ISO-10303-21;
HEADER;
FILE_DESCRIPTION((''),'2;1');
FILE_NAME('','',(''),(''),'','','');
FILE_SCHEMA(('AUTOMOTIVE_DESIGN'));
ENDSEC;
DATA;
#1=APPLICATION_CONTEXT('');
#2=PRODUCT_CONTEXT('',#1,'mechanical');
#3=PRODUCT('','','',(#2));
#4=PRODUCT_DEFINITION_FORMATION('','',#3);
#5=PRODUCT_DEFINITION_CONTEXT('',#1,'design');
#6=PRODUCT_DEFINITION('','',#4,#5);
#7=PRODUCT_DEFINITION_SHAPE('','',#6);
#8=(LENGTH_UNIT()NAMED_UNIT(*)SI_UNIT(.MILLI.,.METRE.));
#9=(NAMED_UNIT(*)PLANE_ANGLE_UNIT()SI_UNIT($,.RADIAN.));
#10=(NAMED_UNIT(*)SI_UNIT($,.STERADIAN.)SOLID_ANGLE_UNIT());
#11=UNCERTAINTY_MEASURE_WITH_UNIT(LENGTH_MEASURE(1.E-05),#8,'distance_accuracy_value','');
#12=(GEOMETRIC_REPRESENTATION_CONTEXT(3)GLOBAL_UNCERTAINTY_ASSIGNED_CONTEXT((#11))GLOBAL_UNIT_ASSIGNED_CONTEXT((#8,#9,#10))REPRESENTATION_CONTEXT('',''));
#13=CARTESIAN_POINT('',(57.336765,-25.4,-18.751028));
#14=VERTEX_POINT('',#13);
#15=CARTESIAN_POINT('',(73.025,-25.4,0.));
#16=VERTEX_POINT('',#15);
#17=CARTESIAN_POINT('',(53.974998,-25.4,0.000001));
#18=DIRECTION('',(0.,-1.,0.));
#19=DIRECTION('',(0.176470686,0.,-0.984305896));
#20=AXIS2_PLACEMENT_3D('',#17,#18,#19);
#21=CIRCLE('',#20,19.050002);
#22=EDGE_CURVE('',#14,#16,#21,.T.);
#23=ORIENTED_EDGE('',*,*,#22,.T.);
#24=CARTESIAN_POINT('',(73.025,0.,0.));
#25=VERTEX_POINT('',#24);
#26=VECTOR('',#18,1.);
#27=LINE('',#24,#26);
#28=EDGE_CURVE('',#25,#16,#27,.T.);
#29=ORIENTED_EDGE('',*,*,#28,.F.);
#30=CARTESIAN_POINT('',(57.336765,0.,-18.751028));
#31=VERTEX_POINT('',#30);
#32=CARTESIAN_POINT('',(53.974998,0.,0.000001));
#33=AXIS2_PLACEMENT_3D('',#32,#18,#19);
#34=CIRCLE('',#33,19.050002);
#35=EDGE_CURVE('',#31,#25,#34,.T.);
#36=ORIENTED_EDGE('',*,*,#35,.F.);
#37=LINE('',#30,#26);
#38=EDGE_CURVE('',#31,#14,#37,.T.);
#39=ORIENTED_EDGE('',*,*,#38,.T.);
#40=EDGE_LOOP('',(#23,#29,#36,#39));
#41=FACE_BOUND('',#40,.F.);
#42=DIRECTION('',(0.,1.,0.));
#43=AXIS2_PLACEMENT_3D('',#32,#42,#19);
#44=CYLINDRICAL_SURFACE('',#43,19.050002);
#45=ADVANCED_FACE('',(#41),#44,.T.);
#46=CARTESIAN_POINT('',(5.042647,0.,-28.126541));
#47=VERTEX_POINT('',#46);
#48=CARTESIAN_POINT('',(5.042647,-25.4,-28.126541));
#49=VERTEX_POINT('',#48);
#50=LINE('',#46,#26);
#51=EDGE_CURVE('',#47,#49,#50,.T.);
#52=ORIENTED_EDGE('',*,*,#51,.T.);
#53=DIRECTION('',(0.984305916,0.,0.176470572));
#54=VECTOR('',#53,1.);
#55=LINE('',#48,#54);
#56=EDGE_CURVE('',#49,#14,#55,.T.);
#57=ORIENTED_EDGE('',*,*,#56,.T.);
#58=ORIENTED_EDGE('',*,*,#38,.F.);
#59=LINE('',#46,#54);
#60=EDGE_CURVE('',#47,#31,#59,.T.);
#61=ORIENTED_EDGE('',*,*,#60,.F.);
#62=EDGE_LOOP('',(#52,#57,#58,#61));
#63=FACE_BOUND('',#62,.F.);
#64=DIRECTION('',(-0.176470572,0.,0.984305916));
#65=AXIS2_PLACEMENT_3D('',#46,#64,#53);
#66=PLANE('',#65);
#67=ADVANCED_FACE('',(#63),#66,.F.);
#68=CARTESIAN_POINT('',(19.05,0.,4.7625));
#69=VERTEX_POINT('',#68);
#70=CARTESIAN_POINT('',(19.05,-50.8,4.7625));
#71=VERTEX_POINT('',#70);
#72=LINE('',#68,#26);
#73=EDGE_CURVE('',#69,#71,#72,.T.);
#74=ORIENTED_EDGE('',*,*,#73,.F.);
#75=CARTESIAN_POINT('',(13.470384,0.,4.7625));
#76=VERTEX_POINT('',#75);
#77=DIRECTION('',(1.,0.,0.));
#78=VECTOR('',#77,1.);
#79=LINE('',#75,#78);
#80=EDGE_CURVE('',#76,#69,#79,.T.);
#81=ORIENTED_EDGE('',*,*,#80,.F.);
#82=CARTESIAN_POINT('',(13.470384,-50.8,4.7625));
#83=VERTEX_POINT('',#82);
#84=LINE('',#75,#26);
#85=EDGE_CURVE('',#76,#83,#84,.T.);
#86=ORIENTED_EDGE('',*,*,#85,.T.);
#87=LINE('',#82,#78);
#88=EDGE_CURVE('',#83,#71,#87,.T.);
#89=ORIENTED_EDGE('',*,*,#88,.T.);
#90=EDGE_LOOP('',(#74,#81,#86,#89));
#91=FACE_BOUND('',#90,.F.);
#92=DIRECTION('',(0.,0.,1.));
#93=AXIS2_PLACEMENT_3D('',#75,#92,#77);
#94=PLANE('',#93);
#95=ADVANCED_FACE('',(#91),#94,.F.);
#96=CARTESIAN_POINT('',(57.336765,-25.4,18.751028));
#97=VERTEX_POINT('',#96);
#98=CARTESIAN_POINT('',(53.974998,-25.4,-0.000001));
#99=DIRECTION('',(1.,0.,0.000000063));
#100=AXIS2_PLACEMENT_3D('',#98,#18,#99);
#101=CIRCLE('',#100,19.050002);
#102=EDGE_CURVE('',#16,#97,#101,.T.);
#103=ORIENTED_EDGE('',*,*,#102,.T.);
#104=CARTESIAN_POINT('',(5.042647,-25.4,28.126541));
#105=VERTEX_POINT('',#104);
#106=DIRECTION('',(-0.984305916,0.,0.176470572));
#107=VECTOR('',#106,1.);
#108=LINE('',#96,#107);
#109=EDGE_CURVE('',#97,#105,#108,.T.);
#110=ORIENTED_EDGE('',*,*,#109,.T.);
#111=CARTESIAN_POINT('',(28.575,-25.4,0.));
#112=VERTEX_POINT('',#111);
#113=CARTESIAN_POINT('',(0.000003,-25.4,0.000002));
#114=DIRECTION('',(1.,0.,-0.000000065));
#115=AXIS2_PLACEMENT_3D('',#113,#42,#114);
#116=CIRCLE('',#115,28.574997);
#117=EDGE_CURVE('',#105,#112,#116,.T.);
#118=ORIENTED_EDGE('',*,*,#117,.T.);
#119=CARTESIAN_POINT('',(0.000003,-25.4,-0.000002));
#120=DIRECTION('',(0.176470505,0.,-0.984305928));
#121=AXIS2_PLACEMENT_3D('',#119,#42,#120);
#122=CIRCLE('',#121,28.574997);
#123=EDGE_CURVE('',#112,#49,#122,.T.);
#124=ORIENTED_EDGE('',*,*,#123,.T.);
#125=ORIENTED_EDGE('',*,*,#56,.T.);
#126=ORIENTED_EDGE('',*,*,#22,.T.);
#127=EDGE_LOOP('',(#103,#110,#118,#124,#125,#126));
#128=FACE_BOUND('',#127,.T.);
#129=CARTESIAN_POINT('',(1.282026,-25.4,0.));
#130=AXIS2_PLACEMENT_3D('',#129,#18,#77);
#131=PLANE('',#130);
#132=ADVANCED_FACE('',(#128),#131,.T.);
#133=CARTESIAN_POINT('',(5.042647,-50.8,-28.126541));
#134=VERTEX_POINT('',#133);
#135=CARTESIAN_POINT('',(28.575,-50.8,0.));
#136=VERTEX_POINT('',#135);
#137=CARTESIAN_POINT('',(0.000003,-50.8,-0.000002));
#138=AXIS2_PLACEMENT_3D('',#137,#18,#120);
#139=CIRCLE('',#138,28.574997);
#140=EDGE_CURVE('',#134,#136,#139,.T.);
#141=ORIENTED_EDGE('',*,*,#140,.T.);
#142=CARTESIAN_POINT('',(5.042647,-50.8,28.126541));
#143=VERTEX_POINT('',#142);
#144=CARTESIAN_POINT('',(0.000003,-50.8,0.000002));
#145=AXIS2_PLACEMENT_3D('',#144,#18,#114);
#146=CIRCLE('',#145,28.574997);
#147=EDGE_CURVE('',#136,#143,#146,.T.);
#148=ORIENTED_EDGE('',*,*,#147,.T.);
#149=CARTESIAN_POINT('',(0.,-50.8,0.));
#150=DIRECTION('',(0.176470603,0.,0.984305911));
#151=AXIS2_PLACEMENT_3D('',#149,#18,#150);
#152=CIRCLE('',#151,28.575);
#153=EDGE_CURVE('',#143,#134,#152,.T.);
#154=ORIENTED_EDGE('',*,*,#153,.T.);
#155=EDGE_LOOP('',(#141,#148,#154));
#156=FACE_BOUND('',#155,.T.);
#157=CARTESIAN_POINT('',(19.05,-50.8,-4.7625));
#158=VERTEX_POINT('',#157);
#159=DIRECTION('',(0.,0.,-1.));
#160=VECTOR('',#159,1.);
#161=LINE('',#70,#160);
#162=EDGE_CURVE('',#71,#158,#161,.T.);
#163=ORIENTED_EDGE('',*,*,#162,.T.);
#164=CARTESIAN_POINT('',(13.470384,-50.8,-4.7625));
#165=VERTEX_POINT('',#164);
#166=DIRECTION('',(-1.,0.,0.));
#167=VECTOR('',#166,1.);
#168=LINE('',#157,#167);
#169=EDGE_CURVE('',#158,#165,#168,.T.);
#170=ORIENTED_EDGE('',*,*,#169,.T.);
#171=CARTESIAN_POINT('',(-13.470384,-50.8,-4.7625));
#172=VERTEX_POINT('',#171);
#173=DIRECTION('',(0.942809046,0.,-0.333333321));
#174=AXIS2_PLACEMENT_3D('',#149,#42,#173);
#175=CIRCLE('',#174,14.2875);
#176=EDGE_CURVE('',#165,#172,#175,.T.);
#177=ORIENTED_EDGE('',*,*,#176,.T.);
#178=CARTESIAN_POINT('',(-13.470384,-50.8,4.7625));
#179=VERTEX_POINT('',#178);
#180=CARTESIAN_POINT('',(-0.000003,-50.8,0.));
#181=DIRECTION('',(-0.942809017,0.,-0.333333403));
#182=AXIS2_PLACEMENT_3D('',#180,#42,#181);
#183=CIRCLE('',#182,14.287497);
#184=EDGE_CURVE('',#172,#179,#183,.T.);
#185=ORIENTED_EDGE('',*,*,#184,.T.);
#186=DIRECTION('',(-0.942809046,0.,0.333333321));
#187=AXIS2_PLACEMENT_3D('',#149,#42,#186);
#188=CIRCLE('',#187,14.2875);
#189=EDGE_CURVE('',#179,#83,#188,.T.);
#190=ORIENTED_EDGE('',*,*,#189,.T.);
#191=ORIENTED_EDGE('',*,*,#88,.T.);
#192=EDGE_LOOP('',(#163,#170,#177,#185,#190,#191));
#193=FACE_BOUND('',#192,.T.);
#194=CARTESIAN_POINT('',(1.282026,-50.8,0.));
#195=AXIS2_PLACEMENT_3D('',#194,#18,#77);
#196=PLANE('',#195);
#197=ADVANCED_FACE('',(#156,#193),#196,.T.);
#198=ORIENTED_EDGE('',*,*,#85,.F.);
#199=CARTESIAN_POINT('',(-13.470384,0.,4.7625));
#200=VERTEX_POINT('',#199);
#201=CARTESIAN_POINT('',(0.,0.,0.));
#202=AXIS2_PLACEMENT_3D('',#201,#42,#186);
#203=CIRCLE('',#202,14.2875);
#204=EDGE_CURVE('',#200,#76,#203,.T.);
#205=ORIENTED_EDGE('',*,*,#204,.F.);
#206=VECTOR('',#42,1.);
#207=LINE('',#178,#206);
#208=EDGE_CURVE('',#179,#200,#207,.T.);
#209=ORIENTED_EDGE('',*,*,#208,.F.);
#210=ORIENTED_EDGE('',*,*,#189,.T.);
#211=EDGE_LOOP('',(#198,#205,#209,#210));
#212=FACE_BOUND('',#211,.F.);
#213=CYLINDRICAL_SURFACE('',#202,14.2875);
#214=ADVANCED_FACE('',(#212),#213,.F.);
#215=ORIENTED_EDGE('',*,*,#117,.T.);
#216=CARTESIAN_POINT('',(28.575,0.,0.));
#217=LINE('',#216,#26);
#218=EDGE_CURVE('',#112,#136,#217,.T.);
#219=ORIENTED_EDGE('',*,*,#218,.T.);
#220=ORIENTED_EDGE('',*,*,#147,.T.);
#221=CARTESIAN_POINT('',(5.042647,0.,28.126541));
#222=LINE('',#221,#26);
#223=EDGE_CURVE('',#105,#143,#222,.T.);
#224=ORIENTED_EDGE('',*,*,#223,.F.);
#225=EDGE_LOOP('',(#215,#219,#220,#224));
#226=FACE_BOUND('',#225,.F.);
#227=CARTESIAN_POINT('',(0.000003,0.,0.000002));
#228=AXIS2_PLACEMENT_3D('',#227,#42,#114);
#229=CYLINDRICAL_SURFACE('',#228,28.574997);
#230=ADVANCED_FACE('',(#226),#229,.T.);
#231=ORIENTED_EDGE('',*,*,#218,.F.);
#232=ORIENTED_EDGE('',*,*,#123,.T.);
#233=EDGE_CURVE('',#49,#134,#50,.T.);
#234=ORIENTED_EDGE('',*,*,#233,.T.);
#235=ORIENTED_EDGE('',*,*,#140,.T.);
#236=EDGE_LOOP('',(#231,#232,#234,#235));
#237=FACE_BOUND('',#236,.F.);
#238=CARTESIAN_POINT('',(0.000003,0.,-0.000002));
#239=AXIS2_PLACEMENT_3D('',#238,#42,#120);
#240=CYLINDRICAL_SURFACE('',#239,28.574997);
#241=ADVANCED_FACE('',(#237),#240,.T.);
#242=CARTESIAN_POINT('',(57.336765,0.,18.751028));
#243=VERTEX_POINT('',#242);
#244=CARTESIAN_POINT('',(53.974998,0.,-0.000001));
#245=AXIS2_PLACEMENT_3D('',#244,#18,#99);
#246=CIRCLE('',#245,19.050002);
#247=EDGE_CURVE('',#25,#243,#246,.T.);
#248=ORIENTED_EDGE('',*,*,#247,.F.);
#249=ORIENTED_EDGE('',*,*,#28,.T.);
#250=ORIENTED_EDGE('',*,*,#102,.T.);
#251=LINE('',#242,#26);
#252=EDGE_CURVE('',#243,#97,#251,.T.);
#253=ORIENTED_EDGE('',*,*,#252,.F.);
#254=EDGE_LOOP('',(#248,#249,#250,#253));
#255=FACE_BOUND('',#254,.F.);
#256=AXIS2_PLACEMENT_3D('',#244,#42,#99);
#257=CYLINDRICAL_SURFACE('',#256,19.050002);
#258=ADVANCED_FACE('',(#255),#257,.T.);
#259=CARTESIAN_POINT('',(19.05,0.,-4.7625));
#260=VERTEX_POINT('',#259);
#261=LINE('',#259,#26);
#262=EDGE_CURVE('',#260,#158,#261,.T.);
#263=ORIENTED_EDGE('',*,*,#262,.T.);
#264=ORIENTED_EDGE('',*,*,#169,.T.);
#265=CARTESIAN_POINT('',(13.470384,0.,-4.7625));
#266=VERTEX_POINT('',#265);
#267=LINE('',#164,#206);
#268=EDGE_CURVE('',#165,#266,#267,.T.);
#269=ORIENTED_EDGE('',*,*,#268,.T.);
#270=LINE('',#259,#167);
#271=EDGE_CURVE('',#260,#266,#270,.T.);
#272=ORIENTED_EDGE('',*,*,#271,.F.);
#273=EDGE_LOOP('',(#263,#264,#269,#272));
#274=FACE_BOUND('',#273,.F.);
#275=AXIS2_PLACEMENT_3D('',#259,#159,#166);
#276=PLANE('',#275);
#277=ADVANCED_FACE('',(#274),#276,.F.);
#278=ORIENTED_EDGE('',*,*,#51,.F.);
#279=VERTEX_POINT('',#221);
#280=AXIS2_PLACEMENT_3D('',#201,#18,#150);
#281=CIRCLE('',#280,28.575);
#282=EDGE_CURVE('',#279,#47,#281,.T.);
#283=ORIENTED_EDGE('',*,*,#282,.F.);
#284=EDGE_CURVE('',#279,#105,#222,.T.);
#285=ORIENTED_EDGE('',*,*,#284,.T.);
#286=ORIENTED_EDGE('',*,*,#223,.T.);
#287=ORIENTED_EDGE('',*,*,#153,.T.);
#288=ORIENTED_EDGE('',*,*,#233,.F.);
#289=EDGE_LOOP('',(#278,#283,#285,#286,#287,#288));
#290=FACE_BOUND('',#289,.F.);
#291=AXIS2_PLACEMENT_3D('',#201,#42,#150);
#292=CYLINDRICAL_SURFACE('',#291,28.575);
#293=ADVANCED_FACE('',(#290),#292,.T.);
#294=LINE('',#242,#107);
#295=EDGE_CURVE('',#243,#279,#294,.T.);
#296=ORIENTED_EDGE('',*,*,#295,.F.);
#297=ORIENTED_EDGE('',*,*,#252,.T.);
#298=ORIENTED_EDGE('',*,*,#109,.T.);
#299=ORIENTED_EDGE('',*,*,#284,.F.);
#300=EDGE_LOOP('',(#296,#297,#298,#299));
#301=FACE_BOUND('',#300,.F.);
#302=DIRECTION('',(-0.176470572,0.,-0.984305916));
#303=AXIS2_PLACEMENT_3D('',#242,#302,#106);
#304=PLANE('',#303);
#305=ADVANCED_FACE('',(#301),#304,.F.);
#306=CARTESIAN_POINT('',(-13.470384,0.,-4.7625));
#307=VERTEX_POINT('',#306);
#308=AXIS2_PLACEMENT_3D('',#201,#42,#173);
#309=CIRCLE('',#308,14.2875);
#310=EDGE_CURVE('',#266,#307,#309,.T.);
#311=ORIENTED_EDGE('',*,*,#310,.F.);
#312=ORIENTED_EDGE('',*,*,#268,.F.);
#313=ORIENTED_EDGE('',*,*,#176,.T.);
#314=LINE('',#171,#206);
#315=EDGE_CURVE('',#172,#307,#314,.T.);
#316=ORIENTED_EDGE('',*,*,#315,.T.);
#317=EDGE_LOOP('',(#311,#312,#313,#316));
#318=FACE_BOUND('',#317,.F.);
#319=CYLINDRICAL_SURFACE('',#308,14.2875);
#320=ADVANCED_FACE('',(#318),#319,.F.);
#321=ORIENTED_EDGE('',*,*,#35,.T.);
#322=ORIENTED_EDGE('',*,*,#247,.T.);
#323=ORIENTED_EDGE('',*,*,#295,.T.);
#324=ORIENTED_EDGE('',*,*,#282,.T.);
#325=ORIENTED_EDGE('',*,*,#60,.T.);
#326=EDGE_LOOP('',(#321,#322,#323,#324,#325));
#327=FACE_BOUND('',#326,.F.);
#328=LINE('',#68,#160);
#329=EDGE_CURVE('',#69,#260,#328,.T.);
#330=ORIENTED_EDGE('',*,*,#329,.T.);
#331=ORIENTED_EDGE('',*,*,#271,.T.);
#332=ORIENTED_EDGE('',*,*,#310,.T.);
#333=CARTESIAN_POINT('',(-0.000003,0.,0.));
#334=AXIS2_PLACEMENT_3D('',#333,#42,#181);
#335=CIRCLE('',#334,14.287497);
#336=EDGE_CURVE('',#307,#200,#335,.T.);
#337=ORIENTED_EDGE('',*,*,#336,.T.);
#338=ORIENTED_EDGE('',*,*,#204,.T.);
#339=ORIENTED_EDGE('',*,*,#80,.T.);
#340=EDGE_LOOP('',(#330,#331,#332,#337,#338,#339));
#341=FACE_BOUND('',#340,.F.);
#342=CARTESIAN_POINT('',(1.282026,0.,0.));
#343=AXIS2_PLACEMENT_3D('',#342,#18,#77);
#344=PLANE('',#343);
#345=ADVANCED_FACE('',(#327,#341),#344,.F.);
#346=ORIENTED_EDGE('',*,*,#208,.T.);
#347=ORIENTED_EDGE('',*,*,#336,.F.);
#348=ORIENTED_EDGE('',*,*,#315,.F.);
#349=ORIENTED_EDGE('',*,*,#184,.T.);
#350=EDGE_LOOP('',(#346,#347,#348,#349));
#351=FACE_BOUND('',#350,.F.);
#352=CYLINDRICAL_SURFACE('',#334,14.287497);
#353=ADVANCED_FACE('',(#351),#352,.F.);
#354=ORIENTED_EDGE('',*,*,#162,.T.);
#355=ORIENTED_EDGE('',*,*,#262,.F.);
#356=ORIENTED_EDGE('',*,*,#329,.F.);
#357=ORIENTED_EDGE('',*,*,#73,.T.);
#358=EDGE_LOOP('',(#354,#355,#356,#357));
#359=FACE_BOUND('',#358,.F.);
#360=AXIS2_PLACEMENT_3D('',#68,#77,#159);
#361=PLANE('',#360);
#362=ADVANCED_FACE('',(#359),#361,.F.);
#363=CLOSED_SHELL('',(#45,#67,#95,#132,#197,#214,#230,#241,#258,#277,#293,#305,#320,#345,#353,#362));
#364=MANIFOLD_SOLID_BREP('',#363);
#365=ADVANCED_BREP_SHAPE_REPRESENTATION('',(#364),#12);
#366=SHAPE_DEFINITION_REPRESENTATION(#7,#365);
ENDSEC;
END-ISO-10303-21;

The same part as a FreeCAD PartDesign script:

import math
import FreeCAD as App
import Part
import Sketcher
Q = App.Units.Quantity

doc = App.newDocument("Part")
params = doc.addObject("Spreadsheet::Sheet", "Params")
for row, (alias, value) in enumerate([
    ("sketch1_radius", "0.7500001 in"),
    ("sketch1_radius2", "1.125 in"),
    ("sketch1_radius3", "0.5625 in"),
    ("sketch1_height", "0.375 in"),
    ("pad1_length", "1 in"),
    ("sketch2_radius", "1.1249999 in"),
    ("sketch2_radius2", "0.5625 in"),
    ("sketch2_height", "0.375 in"),
    ("pad2_length", "2 in"),
], start=1):
    params.set(f"A{row}", alias)
    params.set(f"B{row}", "=" + value)
    params.setAlias(f"B{row}", alias)

body = doc.addObject("PartDesign::Body", "Body")

sketch1 = body.newObject("Sketcher::SketchObject", "Sketch")
sketch1.AttachmentSupport = (doc.getObject("XZ_Plane"), [""])
sketch1.MapMode = "FlatFace"
sketch1.addGeometry([
    Part.ArcOfCircle(Part.Circle(App.Vector(0, 0, 0), App.Vector(0, 0, 1), 29), math.radians(80), math.radians(280)),
    Part.LineSegment(App.Vector(5, -28, 0), App.Vector(57, -19, 0)),
    Part.ArcOfCircle(Part.Circle(App.Vector(54, 0, 0), App.Vector(0, 0, 1), 19), math.radians(-80), math.radians(0)),
    Part.ArcOfCircle(Part.Circle(App.Vector(54, 0, 0), App.Vector(0, 0, 1), 19), math.radians(0), math.radians(80)),
    Part.LineSegment(App.Vector(57, 19, 0), App.Vector(5, 28, 0)),
    Part.ArcOfCircle(Part.Circle(App.Vector(0, 0, 0), App.Vector(0, 0, 1), 14), math.radians(19), math.radians(161)),
    Part.LineSegment(App.Vector(13, 5, 0), App.Vector(19, 5, 0)),
    Part.LineSegment(App.Vector(19, 5, 0), App.Vector(19, -5, 0)),
    Part.LineSegment(App.Vector(19, -5, 0), App.Vector(13, -5, 0)),
    Part.ArcOfCircle(Part.Circle(App.Vector(0, 0, 0), App.Vector(0, 0, 1), 14), math.radians(-161), math.radians(-19)),
    Part.ArcOfCircle(Part.Circle(App.Vector(0, 0, 0), App.Vector(0, 0, 1), 14), math.radians(161), math.radians(199)),
], False)
sketch1.addConstraint([
    Sketcher.Constraint("Tangent", 0, 2, 1, 1),
    Sketcher.Constraint("Tangent", 1, 2, 2, 1),
    Sketcher.Constraint("Tangent", 2, 2, 3, 1),
    Sketcher.Constraint("Tangent", 3, 2, 4, 1),
    Sketcher.Constraint("Tangent", 4, 2, 0, 1),
    Sketcher.Constraint("Coincident", 5, 1, 6, 1),
    Sketcher.Constraint("Coincident", 6, 2, 7, 1),
    Sketcher.Constraint("Coincident", 7, 2, 8, 1),
    Sketcher.Constraint("Coincident", 8, 2, 9, 2),
    Sketcher.Constraint("Tangent", 9, 1, 10, 2),
    Sketcher.Constraint("Tangent", 10, 1, 5, 2),
    Sketcher.Constraint("Horizontal", 6),
    Sketcher.Constraint("Vertical", 7),
    Sketcher.Constraint("Horizontal", 8),
    Sketcher.Constraint("Coincident", 0, 3, -1, 1),
    Sketcher.Constraint("Coincident", 5, 3, -1, 1),
    Sketcher.Constraint("Coincident", 9, 3, -1, 1),
    Sketcher.Constraint("Equal", 2, 3),
    Sketcher.Constraint("PointOnObject", 2, 3, -1),
    Sketcher.Constraint("PointOnObject", 2, 2, -1),
    Sketcher.Constraint("Horizontal", 8, 2, 9, 1),
    Sketcher.Constraint("Horizontal", 6, 2, 10, 1),
    Sketcher.Constraint("Vertical", 5, 1, 8, 2),
    Sketcher.Constraint("Radius", 2, Q("0.7500001 in")),
    Sketcher.Constraint("Radius", 0, Q("1.125 in")),
    Sketcher.Constraint("Radius", 5, Q("0.5625 in")),
    Sketcher.Constraint("DistanceY", 7, 2, 7, 1, Q("0.375 in")),
    Sketcher.Constraint("DistanceX", -1, 1, 6, 2, Q("0.75 in")),
    Sketcher.Constraint("DistanceX", -1, 1, 2, 3, Q("2.1249999 in")),
])
sketch1.setExpression("Constraints[23]", "Params.sketch1_radius")
sketch1.setExpression("Constraints[24]", "Params.sketch1_radius2")
sketch1.setExpression("Constraints[25]", "Params.sketch1_radius3")
sketch1.setExpression("Constraints[26]", "Params.sketch1_height")
pad1 = body.newObject("PartDesign::Pad", "Pad")
pad1.Profile = sketch1
pad1.setExpression("Length", "Params.pad1_length")

sketch2 = body.newObject("Sketcher::SketchObject", "Sketch001")
sketch2.AttachmentSupport = (doc.getObject("XZ_Plane"), [""])
sketch2.MapMode = "FlatFace"
sketch2.addGeometry([
    Part.ArcOfCircle(Part.Circle(App.Vector(0, 0, 0), App.Vector(0, 0, 1), 29), math.radians(-80), math.radians(0)),
    Part.ArcOfCircle(Part.Circle(App.Vector(0, 0, 0), App.Vector(0, 0, 1), 29), math.radians(0), math.radians(80)),
    Part.ArcOfCircle(Part.Circle(App.Vector(0, 0, 0), App.Vector(0, 0, 1), 29), math.radians(80), math.radians(280)),
    Part.ArcOfCircle(Part.Circle(App.Vector(0, 0, 0), App.Vector(0, 0, 1), 14), math.radians(-161), math.radians(-19)),
    Part.ArcOfCircle(Part.Circle(App.Vector(0, 0, 0), App.Vector(0, 0, 1), 14), math.radians(161), math.radians(199)),
    Part.ArcOfCircle(Part.Circle(App.Vector(0, 0, 0), App.Vector(0, 0, 1), 14), math.radians(19), math.radians(161)),
    Part.LineSegment(App.Vector(13, 5, 0), App.Vector(19, 5, 0)),
    Part.LineSegment(App.Vector(19, 5, 0), App.Vector(19, -5, 0)),
    Part.LineSegment(App.Vector(19, -5, 0), App.Vector(13, -5, 0)),
], False)
sketch2.addConstraint([
    Sketcher.Constraint("Tangent", 0, 2, 1, 1),
    Sketcher.Constraint("Tangent", 1, 2, 2, 1),
    Sketcher.Constraint("Tangent", 2, 2, 0, 1),
    Sketcher.Constraint("Tangent", 3, 1, 4, 2),
    Sketcher.Constraint("Tangent", 4, 1, 5, 2),
    Sketcher.Constraint("Coincident", 5, 1, 6, 1),
    Sketcher.Constraint("Coincident", 6, 2, 7, 1),
    Sketcher.Constraint("Coincident", 7, 2, 8, 1),
    Sketcher.Constraint("Coincident", 8, 2, 3, 2),
    Sketcher.Constraint("Horizontal", 6),
    Sketcher.Constraint("Vertical", 7),
    Sketcher.Constraint("Horizontal", 8),
    Sketcher.Constraint("Coincident", 0, 3, -1, 1),
    Sketcher.Constraint("Coincident", 3, 3, -1, 1),
    Sketcher.Constraint("Coincident", 5, 3, -1, 1),
    Sketcher.Constraint("PointOnObject", 0, 2, -1),
    Sketcher.Constraint("Horizontal", 4, 1, 5, 1),
    Sketcher.Constraint("Horizontal", 3, 1, 7, 2),
    Sketcher.Constraint("Vertical", 1, 2, 2, 2),
    Sketcher.Constraint("Vertical", 3, 1, 4, 1),
    Sketcher.Constraint("Radius", 0, Q("1.1249999 in")),
    Sketcher.Constraint("Radius", 3, Q("0.5625 in")),
    Sketcher.Constraint("DistanceY", 7, 2, 7, 1, Q("0.375 in")),
    Sketcher.Constraint("DistanceX", -1, 1, 6, 2, Q("0.75 in")),
    Sketcher.Constraint("DistanceY", -1, 1, 1, 2, 28.126541),
])
sketch2.setExpression("Constraints[20]", "Params.sketch2_radius")
sketch2.setExpression("Constraints[21]", "Params.sketch2_radius2")
sketch2.setExpression("Constraints[22]", "Params.sketch2_height")
pad2 = body.newObject("PartDesign::Pad", "Pad001")
pad2.Profile = sketch2
pad2.setExpression("Length", "Params.pad2_length")

doc.recompute()
